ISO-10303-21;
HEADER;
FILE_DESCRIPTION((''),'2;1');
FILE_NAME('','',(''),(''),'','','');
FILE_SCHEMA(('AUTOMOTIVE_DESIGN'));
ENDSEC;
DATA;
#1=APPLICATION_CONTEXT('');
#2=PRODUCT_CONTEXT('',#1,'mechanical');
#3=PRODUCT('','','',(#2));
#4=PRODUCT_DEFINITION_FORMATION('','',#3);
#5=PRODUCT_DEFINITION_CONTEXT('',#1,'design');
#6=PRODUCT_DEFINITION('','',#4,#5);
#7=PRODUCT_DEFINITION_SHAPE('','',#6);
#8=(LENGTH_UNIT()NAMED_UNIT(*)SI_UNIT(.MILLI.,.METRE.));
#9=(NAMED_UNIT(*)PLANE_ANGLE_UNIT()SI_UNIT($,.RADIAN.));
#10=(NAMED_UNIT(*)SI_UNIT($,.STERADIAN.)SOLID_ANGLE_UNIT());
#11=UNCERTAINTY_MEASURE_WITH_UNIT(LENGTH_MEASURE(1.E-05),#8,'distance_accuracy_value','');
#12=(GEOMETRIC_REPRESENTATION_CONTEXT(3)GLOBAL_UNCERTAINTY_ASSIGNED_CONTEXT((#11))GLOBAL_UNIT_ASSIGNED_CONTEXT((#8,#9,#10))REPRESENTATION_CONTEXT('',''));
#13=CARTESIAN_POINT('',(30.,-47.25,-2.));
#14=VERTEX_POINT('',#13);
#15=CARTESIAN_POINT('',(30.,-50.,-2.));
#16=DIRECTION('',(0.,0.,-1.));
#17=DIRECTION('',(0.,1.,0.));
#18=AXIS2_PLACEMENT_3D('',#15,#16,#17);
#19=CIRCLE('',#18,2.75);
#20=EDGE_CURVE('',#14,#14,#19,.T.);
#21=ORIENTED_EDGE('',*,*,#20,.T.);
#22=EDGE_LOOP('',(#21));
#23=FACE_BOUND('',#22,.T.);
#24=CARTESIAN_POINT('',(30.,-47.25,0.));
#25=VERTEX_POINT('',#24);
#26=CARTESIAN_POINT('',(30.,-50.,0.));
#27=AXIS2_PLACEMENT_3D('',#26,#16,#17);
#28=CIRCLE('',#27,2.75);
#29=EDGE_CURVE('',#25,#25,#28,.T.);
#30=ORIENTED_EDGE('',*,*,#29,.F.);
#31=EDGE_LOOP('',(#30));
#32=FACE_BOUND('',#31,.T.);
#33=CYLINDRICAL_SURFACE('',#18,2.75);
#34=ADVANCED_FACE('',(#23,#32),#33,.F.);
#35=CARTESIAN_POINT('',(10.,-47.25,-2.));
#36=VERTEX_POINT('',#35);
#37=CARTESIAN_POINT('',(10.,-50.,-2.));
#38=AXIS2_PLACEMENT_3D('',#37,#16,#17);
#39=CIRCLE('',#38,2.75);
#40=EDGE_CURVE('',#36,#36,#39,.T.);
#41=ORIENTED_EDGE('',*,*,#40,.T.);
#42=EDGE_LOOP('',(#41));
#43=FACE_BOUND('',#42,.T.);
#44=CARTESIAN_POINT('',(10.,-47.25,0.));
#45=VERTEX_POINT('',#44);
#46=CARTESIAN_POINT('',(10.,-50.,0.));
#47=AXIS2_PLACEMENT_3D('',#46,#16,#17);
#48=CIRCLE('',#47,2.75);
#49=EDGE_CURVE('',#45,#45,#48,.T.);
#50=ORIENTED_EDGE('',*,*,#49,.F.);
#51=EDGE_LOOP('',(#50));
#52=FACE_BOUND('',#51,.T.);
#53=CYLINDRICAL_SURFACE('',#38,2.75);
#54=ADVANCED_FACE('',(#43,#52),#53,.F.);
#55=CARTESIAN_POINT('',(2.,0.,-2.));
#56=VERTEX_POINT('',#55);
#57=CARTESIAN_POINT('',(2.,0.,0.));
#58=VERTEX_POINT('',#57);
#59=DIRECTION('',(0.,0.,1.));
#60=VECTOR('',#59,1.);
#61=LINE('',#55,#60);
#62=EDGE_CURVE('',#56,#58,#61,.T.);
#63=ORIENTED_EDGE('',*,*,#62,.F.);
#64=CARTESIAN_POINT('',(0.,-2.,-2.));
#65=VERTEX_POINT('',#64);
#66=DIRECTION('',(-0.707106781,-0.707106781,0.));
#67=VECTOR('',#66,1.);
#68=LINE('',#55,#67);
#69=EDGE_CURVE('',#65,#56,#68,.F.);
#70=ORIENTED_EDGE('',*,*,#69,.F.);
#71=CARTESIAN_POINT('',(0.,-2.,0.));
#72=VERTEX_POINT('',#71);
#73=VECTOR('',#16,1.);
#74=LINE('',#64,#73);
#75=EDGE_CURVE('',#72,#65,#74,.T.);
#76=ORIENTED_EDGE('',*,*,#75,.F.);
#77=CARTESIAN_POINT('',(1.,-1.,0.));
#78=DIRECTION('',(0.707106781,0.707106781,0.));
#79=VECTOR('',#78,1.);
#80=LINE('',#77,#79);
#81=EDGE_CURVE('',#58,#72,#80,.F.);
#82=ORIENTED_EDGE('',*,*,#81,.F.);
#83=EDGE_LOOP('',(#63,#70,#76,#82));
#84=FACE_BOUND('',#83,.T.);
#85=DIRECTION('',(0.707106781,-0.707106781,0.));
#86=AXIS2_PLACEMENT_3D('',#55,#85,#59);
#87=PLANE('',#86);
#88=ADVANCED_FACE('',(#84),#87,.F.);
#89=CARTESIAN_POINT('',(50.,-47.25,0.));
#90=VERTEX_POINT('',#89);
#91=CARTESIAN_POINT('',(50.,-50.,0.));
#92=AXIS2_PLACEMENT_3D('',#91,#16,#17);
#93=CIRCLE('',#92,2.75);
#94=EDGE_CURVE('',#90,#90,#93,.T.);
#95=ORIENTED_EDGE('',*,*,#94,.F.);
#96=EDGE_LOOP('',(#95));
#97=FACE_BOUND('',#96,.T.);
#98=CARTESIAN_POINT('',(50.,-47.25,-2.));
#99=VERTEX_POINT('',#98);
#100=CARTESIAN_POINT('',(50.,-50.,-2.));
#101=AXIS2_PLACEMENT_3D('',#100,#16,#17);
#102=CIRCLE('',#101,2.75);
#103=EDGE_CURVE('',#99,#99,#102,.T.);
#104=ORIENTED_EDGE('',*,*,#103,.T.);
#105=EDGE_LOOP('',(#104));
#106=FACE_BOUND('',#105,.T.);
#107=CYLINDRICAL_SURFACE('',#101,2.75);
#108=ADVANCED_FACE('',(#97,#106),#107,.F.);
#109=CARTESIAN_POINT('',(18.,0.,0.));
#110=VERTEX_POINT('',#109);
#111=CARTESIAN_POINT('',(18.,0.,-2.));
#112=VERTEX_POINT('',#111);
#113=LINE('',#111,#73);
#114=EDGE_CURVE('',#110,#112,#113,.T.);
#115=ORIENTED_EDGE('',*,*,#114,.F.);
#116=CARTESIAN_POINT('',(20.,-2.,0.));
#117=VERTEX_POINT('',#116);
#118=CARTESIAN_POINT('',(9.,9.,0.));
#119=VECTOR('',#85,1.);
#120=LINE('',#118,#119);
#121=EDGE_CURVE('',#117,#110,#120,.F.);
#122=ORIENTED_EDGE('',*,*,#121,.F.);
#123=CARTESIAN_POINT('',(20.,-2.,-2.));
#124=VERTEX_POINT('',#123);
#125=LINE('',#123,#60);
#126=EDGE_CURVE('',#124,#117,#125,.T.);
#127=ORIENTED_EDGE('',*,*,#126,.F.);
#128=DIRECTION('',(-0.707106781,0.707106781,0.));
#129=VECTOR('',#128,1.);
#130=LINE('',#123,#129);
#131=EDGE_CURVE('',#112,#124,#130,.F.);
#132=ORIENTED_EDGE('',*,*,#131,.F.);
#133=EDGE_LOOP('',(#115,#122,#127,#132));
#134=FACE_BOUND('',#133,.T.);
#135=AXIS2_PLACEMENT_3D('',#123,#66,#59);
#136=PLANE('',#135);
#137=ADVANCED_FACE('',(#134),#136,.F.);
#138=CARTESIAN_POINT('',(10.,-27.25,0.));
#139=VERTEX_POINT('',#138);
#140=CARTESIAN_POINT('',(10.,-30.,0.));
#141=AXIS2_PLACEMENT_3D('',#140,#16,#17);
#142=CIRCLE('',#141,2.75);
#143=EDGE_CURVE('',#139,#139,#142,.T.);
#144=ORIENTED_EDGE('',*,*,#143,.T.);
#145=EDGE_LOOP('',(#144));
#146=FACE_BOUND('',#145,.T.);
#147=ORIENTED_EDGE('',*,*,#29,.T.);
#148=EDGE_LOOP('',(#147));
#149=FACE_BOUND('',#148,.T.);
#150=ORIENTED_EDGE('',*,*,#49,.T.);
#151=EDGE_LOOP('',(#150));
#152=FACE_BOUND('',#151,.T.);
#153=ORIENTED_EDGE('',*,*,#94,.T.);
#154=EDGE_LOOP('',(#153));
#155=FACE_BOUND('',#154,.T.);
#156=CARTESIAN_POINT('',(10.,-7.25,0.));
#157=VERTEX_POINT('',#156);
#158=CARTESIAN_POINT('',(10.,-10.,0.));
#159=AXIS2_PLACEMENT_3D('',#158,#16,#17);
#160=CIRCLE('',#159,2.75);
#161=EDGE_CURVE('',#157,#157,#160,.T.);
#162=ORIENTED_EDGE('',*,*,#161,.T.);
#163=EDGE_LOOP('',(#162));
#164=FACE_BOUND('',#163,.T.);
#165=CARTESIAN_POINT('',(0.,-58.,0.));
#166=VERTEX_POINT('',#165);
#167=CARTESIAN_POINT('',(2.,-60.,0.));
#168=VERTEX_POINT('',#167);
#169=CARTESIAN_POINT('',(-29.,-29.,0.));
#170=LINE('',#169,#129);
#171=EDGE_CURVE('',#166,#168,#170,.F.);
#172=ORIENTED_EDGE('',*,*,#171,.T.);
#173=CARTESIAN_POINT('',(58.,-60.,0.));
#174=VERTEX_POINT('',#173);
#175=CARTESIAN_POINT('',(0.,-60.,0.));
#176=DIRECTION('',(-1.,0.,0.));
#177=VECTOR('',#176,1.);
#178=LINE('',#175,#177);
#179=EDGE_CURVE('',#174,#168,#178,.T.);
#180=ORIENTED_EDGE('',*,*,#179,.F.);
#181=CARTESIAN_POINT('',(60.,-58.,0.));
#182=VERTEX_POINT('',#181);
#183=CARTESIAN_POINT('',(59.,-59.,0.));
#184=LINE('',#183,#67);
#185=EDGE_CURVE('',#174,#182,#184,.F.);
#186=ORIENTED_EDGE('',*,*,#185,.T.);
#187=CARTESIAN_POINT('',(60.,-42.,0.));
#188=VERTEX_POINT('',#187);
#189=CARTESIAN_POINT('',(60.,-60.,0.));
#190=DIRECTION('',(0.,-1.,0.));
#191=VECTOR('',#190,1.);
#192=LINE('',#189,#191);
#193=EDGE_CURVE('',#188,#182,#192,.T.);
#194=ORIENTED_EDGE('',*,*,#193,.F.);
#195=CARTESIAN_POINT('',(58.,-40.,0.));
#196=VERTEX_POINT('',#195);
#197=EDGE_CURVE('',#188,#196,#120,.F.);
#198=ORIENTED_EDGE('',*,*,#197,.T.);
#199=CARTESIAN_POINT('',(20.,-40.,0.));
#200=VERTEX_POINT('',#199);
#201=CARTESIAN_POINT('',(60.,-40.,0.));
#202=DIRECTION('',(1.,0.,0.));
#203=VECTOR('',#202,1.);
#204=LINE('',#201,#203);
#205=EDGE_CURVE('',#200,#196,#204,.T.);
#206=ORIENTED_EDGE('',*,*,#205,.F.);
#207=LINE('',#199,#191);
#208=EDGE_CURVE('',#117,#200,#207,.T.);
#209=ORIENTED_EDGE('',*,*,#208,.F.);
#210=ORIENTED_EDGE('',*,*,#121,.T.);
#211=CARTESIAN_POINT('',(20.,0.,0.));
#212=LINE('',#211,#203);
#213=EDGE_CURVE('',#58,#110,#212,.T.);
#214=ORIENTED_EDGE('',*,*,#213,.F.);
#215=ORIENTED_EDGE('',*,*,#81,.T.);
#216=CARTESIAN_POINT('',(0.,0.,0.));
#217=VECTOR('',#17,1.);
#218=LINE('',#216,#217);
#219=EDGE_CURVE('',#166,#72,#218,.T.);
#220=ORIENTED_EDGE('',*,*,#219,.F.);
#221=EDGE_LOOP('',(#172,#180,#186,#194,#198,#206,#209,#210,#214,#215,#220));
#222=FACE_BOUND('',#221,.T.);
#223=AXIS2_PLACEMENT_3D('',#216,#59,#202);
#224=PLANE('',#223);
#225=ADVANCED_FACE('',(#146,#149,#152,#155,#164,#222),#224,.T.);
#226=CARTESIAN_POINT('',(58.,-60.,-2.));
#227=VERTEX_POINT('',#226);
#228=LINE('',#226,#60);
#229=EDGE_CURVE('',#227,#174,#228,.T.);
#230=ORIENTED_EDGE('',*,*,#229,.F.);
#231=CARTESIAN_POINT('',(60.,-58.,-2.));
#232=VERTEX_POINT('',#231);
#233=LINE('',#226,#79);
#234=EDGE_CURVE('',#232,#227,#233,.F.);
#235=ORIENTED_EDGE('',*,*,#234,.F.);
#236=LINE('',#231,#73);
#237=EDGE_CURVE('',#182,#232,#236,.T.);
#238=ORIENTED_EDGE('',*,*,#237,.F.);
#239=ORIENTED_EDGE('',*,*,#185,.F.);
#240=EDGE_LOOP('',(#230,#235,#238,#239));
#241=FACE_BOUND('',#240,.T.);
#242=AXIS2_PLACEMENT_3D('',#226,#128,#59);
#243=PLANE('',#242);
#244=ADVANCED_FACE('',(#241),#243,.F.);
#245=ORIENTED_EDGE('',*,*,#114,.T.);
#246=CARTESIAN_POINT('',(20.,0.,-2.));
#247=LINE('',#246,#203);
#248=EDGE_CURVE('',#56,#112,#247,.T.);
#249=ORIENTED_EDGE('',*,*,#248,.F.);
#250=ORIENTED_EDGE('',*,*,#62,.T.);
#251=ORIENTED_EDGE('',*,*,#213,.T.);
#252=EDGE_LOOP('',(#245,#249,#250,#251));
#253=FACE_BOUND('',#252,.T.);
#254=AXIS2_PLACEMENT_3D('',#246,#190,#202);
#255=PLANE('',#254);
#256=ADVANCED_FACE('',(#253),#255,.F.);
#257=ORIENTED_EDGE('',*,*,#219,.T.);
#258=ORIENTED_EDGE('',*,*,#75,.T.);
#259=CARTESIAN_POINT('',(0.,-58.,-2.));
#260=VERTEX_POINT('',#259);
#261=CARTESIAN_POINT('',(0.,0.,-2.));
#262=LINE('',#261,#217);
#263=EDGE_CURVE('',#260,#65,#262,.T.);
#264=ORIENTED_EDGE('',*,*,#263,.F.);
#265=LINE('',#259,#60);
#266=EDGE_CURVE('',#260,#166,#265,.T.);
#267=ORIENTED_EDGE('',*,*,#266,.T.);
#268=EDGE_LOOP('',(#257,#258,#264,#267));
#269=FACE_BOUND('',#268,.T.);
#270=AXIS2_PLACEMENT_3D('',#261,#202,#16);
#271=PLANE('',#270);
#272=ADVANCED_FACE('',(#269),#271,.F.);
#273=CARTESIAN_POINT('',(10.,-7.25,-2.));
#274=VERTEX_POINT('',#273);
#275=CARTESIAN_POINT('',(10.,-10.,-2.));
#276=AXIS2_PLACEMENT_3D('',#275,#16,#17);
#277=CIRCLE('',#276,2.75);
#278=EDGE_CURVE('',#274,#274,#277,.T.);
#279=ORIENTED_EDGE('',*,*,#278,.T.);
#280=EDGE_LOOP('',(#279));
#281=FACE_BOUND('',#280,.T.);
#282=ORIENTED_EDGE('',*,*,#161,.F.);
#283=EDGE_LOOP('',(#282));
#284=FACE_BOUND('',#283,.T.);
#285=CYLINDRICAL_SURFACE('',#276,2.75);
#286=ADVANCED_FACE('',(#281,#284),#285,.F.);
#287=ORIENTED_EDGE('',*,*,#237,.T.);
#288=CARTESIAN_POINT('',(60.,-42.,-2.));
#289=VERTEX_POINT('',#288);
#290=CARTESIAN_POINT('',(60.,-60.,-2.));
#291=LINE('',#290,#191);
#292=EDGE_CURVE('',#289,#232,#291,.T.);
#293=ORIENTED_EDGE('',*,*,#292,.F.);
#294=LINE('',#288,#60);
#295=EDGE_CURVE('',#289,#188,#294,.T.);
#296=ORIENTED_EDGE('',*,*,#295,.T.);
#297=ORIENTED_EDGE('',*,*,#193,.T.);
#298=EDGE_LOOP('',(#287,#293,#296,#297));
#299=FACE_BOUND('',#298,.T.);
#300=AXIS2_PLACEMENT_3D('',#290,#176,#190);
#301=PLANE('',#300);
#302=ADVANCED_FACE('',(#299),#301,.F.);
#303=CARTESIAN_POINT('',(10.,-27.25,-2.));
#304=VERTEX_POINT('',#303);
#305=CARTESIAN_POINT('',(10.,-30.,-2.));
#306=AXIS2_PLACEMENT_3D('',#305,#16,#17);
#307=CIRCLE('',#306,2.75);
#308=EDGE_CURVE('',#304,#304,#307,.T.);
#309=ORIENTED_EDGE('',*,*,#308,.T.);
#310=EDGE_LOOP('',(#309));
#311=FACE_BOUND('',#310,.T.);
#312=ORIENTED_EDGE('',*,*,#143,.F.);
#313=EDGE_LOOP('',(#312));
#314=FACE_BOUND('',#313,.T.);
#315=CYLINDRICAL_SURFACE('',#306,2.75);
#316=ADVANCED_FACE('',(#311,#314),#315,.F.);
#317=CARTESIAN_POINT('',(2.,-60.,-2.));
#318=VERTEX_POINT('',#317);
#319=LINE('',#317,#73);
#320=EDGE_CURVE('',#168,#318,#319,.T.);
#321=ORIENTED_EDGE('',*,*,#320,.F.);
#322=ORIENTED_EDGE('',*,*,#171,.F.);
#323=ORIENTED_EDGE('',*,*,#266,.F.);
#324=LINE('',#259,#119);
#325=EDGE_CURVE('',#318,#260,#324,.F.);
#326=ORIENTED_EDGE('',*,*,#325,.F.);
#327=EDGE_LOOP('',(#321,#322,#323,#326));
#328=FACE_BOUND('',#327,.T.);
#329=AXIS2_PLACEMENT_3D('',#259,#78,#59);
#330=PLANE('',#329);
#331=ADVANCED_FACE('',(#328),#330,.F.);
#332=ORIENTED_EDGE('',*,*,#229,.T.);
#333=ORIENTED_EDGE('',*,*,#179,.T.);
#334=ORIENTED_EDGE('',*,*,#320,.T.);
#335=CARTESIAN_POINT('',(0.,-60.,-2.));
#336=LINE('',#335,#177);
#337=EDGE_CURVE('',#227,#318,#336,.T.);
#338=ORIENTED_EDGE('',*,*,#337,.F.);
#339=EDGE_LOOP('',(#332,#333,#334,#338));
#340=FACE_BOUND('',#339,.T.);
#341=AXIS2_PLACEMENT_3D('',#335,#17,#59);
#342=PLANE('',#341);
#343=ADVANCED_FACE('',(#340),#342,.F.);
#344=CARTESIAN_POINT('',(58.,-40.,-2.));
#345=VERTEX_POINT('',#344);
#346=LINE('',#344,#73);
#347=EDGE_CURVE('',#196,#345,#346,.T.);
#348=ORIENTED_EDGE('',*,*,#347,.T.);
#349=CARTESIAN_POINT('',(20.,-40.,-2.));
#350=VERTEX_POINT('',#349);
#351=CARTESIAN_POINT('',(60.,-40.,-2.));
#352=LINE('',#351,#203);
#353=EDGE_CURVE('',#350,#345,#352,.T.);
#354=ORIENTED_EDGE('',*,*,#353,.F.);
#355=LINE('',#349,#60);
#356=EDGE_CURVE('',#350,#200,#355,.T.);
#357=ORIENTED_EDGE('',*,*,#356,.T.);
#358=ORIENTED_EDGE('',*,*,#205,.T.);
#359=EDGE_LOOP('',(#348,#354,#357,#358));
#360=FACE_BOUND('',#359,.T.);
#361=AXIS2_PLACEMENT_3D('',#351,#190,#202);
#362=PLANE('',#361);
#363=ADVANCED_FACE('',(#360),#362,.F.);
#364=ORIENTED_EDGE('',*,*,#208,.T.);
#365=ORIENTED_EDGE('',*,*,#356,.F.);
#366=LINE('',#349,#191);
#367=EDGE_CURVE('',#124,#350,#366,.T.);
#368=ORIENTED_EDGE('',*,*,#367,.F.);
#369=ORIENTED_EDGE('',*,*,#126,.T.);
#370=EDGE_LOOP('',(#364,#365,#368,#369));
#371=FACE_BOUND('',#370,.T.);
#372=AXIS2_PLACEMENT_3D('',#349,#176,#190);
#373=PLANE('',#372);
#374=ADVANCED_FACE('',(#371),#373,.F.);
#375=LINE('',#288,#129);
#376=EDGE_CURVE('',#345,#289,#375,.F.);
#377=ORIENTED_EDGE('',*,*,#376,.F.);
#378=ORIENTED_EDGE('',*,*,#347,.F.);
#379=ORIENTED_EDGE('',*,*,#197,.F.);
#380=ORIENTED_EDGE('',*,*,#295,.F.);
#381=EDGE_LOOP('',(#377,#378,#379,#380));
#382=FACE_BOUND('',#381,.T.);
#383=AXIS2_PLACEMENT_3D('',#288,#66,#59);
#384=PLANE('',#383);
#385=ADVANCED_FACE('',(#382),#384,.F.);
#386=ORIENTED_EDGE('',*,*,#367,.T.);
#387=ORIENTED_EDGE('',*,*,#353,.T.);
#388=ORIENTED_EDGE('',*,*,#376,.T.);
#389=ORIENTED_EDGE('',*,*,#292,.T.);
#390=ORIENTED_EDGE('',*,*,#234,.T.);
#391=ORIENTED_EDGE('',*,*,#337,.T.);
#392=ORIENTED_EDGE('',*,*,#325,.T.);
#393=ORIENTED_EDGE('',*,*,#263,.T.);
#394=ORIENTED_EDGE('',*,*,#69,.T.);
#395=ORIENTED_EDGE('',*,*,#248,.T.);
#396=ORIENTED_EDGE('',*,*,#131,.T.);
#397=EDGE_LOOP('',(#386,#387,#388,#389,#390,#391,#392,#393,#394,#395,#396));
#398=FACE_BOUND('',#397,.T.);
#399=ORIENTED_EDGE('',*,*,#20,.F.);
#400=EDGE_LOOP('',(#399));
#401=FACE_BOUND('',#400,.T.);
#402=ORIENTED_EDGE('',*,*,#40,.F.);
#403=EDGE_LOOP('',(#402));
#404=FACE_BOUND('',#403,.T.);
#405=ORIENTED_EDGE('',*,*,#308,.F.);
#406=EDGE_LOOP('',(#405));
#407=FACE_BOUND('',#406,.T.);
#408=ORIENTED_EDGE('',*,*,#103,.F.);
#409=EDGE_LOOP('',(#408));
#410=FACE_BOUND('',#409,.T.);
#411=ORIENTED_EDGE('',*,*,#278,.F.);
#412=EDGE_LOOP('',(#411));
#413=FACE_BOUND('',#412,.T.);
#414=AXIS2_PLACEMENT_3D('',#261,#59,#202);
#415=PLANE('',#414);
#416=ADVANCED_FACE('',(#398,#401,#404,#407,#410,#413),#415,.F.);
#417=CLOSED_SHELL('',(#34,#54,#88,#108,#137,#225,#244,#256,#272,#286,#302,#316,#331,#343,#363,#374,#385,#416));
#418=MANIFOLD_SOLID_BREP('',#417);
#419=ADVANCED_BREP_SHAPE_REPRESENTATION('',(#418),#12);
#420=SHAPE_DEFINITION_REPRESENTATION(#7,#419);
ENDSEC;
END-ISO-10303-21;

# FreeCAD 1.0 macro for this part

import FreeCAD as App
import Part
import Sketcher

V = App.Vector
Q = App.Units.Quantity


def edges_at(feature, points):
    """Names of the edges that pass closest to the given points."""
    edges = feature.Shape.Edges
    near = lambda p: min(range(len(edges)), key=lambda i: edges[i].distToShape(Part.Vertex(*p))[0])
    return sorted({f"Edge{near(p) + 1}" for p in points})

doc = App.newDocument("Part")
body = doc.addObject("PartDesign::Body", "Body")

# Sketch on XY plane
sketch1 = doc.addObject("Sketcher::SketchObject", "Sketch")
body.addObject(sketch1)
sketch1.AttachmentSupport = (doc.XY_Plane, [""])
sketch1.MapMode = "FlatFace"
sketch1.addGeometry([
    Part.LineSegment(V(0, -60, 0), V(0, 0, 0)),  # 0
    Part.LineSegment(V(0, 0, 0), V(20, 0, 0)),  # 1
    Part.LineSegment(V(20, 0, 0), V(20, -40, 0)),  # 2
    Part.LineSegment(V(20, -40, 0), V(60, -40, 0)),  # 3
    Part.LineSegment(V(60, -40, 0), V(60, -60, 0)),  # 4
    Part.LineSegment(V(60, -60, 0), V(0, -60, 0)),  # 5
], False)
sketch1.addConstraint([
    Sketcher.Constraint("Coincident", 0, 2, 1, 1),
    Sketcher.Constraint("Coincident", 1, 2, 2, 1),
    Sketcher.Constraint("Coincident", 2, 2, 3, 1),
    Sketcher.Constraint("Coincident", 3, 2, 4, 1),
    Sketcher.Constraint("Coincident", 4, 2, 5, 1),
    Sketcher.Constraint("Coincident", 5, 2, 0, 1),
    Sketcher.Constraint("Vertical", 0),
    Sketcher.Constraint("Horizontal", 1),
    Sketcher.Constraint("Vertical", 2),
    Sketcher.Constraint("Horizontal", 3),
    Sketcher.Constraint("Vertical", 4),
    Sketcher.Constraint("Horizontal", 5),
    Sketcher.Constraint("Coincident", 0, 2, -1, 1),
    Sketcher.Constraint("Equal", 5, 0),
    Sketcher.Constraint("Equal", 3, 2),
    Sketcher.Constraint("DistanceX", 1, 1, 1, 2, Q("20 mm")),
    Sketcher.Constraint("DistanceX", 3, 1, 3, 2, Q("40 mm")),
])
pad1 = doc.addObject("PartDesign::Pad", "Pad")
body.addObject(pad1)
pad1.Profile = sketch1
pad1.Length = 2
pad1.Reversed = True

# Sketch on XY plane
sketch2 = doc.addObject("Sketcher::SketchObject", "Sketch001")
body.addObject(sketch2)
sketch2.AttachmentSupport = (doc.XY_Plane, [""])
sketch2.MapMode = "FlatFace"
sketch2.AttachmentOffset = App.Placement(V(0, 0, -2), App.Rotation())
sketch2.addGeometry([
    Part.Circle(V(30, -50, 0), V(0, 0, 1), 2.75),  # 0
    Part.Circle(V(10, -50, 0), V(0, 0, 1), 2.75),  # 1
    Part.Circle(V(10, -30, 0), V(0, 0, 1), 2.75),  # 2
    Part.Circle(V(10, -10, 0), V(0, 0, 1), 2.75),  # 3
    Part.Circle(V(50, -50, 0), V(0, 0, 1), 2.75),  # 4
], False)
sketch2.addConstraint([
    Sketcher.Constraint("Equal", 0, 1),
    Sketcher.Constraint("Equal", 1, 2),
    Sketcher.Constraint("Equal", 2, 3),
    Sketcher.Constraint("Equal", 3, 4),
    Sketcher.Constraint("Horizontal", 0, 3, 1, 3),
    Sketcher.Constraint("Horizontal", 1, 3, 4, 3),
    Sketcher.Constraint("Vertical", 1, 3, 2, 3),
    Sketcher.Constraint("Vertical", 2, 3, 3, 3),
    Sketcher.Constraint("Diameter", 0, Q("5.5 mm")),
    Sketcher.Constraint("DistanceX", -1, 1, 0, 3, Q("30 mm")),
    Sketcher.Constraint("DistanceY", 0, 3, -1, 1, Q("50 mm")),
    Sketcher.Constraint("DistanceX", -1, 1, 1, 3, Q("10 mm")),
    Sketcher.Constraint("DistanceY", 2, 3, -1, 1, Q("30 mm")),
    Sketcher.Constraint("DistanceY", 3, 3, -1, 1, Q("10 mm")),
    Sketcher.Constraint("DistanceX", -1, 1, 4, 3, Q("50 mm")),
])
doc.recompute()
hole = doc.addObject("PartDesign::Hole", "Hole")
body.addObject(hole)
hole.Profile = sketch2
hole.ThreadType = "None"
hole.Diameter = 5.5
hole.DepthType = "ThroughAll"
hole.Reversed = True
doc.recompute()

chamfer = doc.addObject("PartDesign::Chamfer", "Chamfer")
body.addObject(chamfer)
chamfer.Base = (hole, edges_at(hole, [
    (0, 0, -1),
    (0, -60, -1),
    (60, -60, -1),
    (60, -40, -1),
    (20, 0, -1),
]))
chamfer.Size = 2

doc.recompute()
